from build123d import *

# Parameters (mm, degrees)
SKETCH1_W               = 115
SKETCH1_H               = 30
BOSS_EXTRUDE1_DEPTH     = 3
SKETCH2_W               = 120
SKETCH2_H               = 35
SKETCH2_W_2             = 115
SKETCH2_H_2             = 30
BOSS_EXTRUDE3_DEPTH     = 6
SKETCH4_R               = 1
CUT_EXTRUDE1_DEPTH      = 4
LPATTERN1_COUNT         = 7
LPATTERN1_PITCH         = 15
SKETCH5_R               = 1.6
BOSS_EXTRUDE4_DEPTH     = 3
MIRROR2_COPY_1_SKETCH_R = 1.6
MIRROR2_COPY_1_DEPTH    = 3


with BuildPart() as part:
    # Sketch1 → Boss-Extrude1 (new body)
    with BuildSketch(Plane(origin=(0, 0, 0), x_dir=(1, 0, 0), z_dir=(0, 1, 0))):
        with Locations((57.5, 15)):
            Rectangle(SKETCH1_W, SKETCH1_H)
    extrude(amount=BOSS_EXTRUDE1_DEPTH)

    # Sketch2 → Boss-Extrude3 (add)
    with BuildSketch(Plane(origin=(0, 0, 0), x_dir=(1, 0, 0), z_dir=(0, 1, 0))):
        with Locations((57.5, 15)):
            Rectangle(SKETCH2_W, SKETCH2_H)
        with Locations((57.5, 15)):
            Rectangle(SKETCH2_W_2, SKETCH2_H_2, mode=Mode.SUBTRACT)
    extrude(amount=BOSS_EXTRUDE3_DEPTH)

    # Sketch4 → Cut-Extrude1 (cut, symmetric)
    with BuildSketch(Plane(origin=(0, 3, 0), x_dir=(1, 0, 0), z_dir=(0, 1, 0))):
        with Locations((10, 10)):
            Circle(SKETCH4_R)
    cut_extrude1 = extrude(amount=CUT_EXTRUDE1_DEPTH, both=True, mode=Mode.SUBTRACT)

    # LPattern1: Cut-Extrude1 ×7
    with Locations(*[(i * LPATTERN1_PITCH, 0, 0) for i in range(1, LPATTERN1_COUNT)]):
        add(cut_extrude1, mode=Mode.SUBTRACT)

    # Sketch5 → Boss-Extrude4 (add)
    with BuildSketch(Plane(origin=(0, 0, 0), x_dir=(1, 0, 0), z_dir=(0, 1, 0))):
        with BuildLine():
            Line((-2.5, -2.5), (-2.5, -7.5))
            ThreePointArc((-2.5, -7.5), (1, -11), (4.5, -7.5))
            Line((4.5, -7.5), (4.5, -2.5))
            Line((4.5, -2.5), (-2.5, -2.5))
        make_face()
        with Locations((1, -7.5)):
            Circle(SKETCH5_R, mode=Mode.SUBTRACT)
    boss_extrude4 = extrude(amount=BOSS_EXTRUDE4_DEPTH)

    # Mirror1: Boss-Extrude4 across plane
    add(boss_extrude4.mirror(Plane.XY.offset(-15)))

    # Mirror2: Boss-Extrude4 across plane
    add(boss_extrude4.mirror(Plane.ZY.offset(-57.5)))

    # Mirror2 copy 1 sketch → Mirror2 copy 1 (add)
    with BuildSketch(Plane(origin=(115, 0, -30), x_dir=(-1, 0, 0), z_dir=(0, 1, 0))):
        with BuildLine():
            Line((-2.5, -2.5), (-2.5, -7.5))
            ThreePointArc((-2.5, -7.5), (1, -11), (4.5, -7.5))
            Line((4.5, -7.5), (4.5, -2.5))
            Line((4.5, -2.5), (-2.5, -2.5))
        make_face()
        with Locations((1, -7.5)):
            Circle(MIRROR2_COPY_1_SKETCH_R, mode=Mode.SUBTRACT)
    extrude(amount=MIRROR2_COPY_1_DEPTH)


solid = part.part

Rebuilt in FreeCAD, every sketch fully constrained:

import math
import FreeCAD as App
import Part
import Sketcher
from FreeCAD import Vector
Q = App.Units.Quantity

doc = App.newDocument("Part")
body = doc.addObject("PartDesign::Body", "Body")

# Sketch on XZ plane
sketch1 = body.newObject("Sketcher::SketchObject", "Sketch")
sketch1.AttachmentSupport = (doc.getObject("XZ_Plane"), [""])
sketch1.MapMode = "FlatFace"
sketch1.addGeometry(Part.LineSegment(Vector(0, -30, 0), Vector(0, 0, 0)), False)
sketch1.addGeometry(Part.LineSegment(Vector(0, 0, 0), Vector(115, 0, 0)), False)
sketch1.addGeometry(Part.LineSegment(Vector(115, 0, 0), Vector(115, -30, 0)), False)
sketch1.addGeometry(Part.LineSegment(Vector(115, -30, 0), Vector(0, -30, 0)), False)
sketch1.addConstraint(Sketcher.Constraint("Coincident", 0, 2, 1, 1))
sketch1.addConstraint(Sketcher.Constraint("Coincident", 1, 2, 2, 1))
sketch1.addConstraint(Sketcher.Constraint("Coincident", 2, 2, 3, 1))
sketch1.addConstraint(Sketcher.Constraint("Coincident", 3, 2, 0, 1))
sketch1.addConstraint(Sketcher.Constraint("Vertical", 0))
sketch1.addConstraint(Sketcher.Constraint("Horizontal", 1))
sketch1.addConstraint(Sketcher.Constraint("Vertical", 2))
sketch1.addConstraint(Sketcher.Constraint("Horizontal", 3))
sketch1.addConstraint(Sketcher.Constraint("Coincident", 0, 2, -1, 1))
sketch1.addConstraint(Sketcher.Constraint("DistanceX", 1, 1, 1, 2, Q("115 mm")))
sketch1.addConstraint(Sketcher.Constraint("DistanceY", 0, 1, 0, 2, Q("30 mm")))
pad1 = body.newObject("PartDesign::Pad", "Pad")
pad1.Profile = sketch1
pad1.Length = 3
pad1.Reversed = True

# Sketch on XZ plane
sketch2 = body.newObject("Sketcher::SketchObject", "Sketch001")
sketch2.AttachmentSupport = (doc.getObject("XZ_Plane"), [""])
sketch2.MapMode = "FlatFace"
sketch2.addGeometry(Part.LineSegment(Vector(-2, -32, 0), Vector(-2, 2, 0)), False)
sketch2.addGeometry(Part.LineSegment(Vector(-2, 2, 0), Vector(118, 2, 0)), False)
sketch2.addGeometry(Part.LineSegment(Vector(118, 2, 0), Vector(118, -32, 0)), False)
sketch2.addGeometry(Part.LineSegment(Vector(118, -32, 0), Vector(-2, -32, 0)), False)
sketch2.addGeometry(Part.LineSegment(Vector(115, 0, 0), Vector(0, 0, 0)), False)
sketch2.addGeometry(Part.LineSegment(Vector(0, 0, 0), Vector(0, -30, 0)), False)
sketch2.addGeometry(Part.LineSegment(Vector(0, -30, 0), Vector(115, -30, 0)), False)
sketch2.addGeometry(Part.LineSegment(Vector(115, -30, 0), Vector(115, 0, 0)), False)
sketch2.addConstraint(Sketcher.Constraint("Coincident", 0, 2, 1, 1))
sketch2.addConstraint(Sketcher.Constraint("Coincident", 1, 2, 2, 1))
sketch2.addConstraint(Sketcher.Constraint("Coincident", 2, 2, 3, 1))
sketch2.addConstraint(Sketcher.Constraint("Coincident", 3, 2, 0, 1))
sketch2.addConstraint(Sketcher.Constraint("Coincident", 4, 2, 5, 1))
sketch2.addConstraint(Sketcher.Constraint("Coincident", 5, 2, 6, 1))
sketch2.addConstraint(Sketcher.Constraint("Coincident", 6, 2, 7, 1))
sketch2.addConstraint(Sketcher.Constraint("Coincident", 7, 2, 4, 1))
sketch2.addConstraint(Sketcher.Constraint("Vertical", 0))
sketch2.addConstraint(Sketcher.Constraint("Horizontal", 1))
sketch2.addConstraint(Sketcher.Constraint("Vertical", 2))
sketch2.addConstraint(Sketcher.Constraint("Horizontal", 3))
sketch2.addConstraint(Sketcher.Constraint("Horizontal", 4))
sketch2.addConstraint(Sketcher.Constraint("Vertical", 5))
sketch2.addConstraint(Sketcher.Constraint("Horizontal", 6))
sketch2.addConstraint(Sketcher.Constraint("Vertical", 7))
sketch2.addConstraint(Sketcher.Constraint("Coincident", 4, 2, -1, 1))
sketch2.addConstraint(Sketcher.Constraint("DistanceX", 1, 1, 1, 2, Q("120 mm")))
sketch2.addConstraint(Sketcher.Constraint("DistanceX", 4, 2, 4, 1, Q("115 mm")))
sketch2.addConstraint(Sketcher.Constraint("DistanceY", 0, 1, 0, 2, Q("35 mm")))
sketch2.addConstraint(Sketcher.Constraint("DistanceY", 5, 2, 5, 1, Q("30 mm")))
sketch2.addConstraint(Sketcher.Constraint("DistanceX", 0, 2, -1, 1, Q("2.5 mm")))
sketch2.addConstraint(Sketcher.Constraint("DistanceY", -1, 1, 0, 2, Q("2.5 mm")))
pad2 = body.newObject("PartDesign::Pad", "Pad001")
pad2.Profile = sketch2
pad2.Length = 6
pad2.Reversed = True

# Sketch on XZ plane
sketch3 = body.newObject("Sketcher::SketchObject", "Sketch002")
sketch3.AttachmentSupport = (doc.getObject("XZ_Plane"), [""])
sketch3.MapMode = "FlatFace"
sketch3.AttachmentOffset = App.Placement(Vector(0, 0, -3), App.Rotation())
sketch3.addGeometry(Part.Circle(Vector(10, -10, 0), Vector(0, 0, 1), 1), False)
sketch3.addConstraint(Sketcher.Constraint("Diameter", 0, Q("2 mm")))
sketch3.addConstraint(Sketcher.Constraint("DistanceX", -1, 1, 0, 3, Q("10 mm")))
sketch3.addConstraint(Sketcher.Constraint("DistanceY", 0, 3, -1, 1, Q("10 mm")))
pocket1 = body.newObject("PartDesign::Pocket", "Pocket")
pocket1.Profile = sketch3
pocket1.Length = 8
pocket1.Midplane = True
doc.recompute()

linearpattern = body.newObject("PartDesign::LinearPattern", "LinearPattern")
linearpattern.Originals = [pocket1]
linearpattern.Direction = (doc.getObject("X_Axis"), [""])
linearpattern.Mode = "offset"
linearpattern.Offset = 15
linearpattern.Occurrences = 7
body.Tip = linearpattern

# Sketch on XZ plane
sketch4 = body.newObject("Sketcher::SketchObject", "Sketch003")
sketch4.AttachmentSupport = (doc.getObject("XZ_Plane"), [""])
sketch4.MapMode = "FlatFace"
sketch4.addGeometry(Part.LineSegment(Vector(-2.5, 2.5, 0), Vector(-2.5, 7.5, 0)), False)
sketch4.addGeometry(Part.ArcOfCircle(Part.Circle(Vector(1, 7.5, 0), Vector(0, 0, 1), 3.5), math.radians(0), math.radians(180)), False)
sketch4.addGeometry(Part.LineSegment(Vector(4.5, 7.5, 0), Vector(4.5, 2.5, 0)), False)
sketch4.addGeometry(Part.LineSegment(Vector(4.5, 2.5, 0), Vector(-2.5, 2.5, 0)), False)
sketch4.addGeometry(Part.Circle(Vector(1, 7.5, 0), Vector(0, 0, 1), 1.6), False)
sketch4.addConstraint(Sketcher.Constraint("Tangent", 0, 2, 1, 2))
sketch4.addConstraint(Sketcher.Constraint("Tangent", 1, 1, 2, 1))
sketch4.addConstraint(Sketcher.Constraint("Coincident", 2, 2, 3, 1))
sketch4.addConstraint(Sketcher.Constraint("Coincident", 3, 2, 0, 1))
sketch4.addConstraint(Sketcher.Constraint("Vertical", 0))
sketch4.addConstraint(Sketcher.Constraint("Vertical", 2))
sketch4.addConstraint(Sketcher.Constraint("Horizontal", 3))
sketch4.addConstraint(Sketcher.Constraint("Coincident", 4, 3, 1, 3))
sketch4.addConstraint(Sketcher.Constraint("Diameter", 4, Q("3.2 mm")))
sketch4.addConstraint(Sketcher.Constraint("Radius", 1, Q("3.5 mm")))
sketch4.addConstraint(Sketcher.Constraint("DistanceY", 0, 1, 0, 2, Q("5 mm")))
sketch4.addConstraint(Sketcher.Constraint("DistanceX", -1, 1, 1, 3, Q("1 mm")))
sketch4.addConstraint(Sketcher.Constraint("DistanceY", -1, 1, 1, 3, Q("7.5 mm")))
pad3 = body.newObject("PartDesign::Pad", "Pad002")
pad3.Profile = sketch4
pad3.Length = 3
pad3.Reversed = True
doc.recompute()

datumplane = body.newObject("PartDesign::Plane", "DatumPlane")
datumplane.AttachmentSupport = (doc.getObject("XY_Plane"), [""])
datumplane.MapMode = "FlatFace"
datumplane.AttachmentOffset = App.Placement(Vector(0, 0, -15), App.Rotation())
mirrored = body.newObject("PartDesign::Mirrored", "Mirrored")
mirrored.Originals = [pad3]
mirrored.MirrorPlane = (datumplane, [""])
body.Tip = mirrored
doc.recompute()

datumplane2 = body.newObject("PartDesign::Plane", "DatumPlane001")
datumplane2.AttachmentSupport = (doc.getObject("YZ_Plane"), [""])
datumplane2.MapMode = "FlatFace"
datumplane2.AttachmentOffset = App.Placement(Vector(0, 0, 57.5), App.Rotation())
mirrored2 = body.newObject("PartDesign::Mirrored", "Mirrored001")
mirrored2.Originals = [pad3]
mirrored2.MirrorPlane = (datumplane2, [""])
body.Tip = mirrored2

# Sketch on XZ plane
sketch5 = body.newObject("Sketcher::SketchObject", "Sketch004")
sketch5.AttachmentSupport = (doc.getObject("XZ_Plane"), [""])
sketch5.MapMode = "FlatFace"
sketch5.addGeometry(Part.LineSegment(Vector(117.5, -32.5, 0), Vector(117.5, -37.5, 0)), False)
sketch5.addGeometry(Part.ArcOfCircle(Part.Circle(Vector(114, -37.5, 0), Vector(0, 0, 1), 3.5), math.radians(180), math.radians(360)), False)
sketch5.addGeometry(Part.LineSegment(Vector(110.5, -37.5, 0), Vector(110.5, -32.5, 0)), False)
sketch5.addGeometry(Part.LineSegment(Vector(110.5, -32.5, 0), Vector(117.5, -32.5, 0)), False)
sketch5.addGeometry(Part.Circle(Vector(114, -37.5, 0), Vector(0, 0, 1), 1.6), False)
sketch5.addConstraint(Sketcher.Constraint("Tangent", 0, 2, 1, 2))
sketch5.addConstraint(Sketcher.Constraint("Tangent", 1, 1, 2, 1))
sketch5.addConstraint(Sketcher.Constraint("Coincident", 2, 2, 3, 1))
sketch5.addConstraint(Sketcher.Constraint("Coincident", 3, 2, 0, 1))
sketch5.addConstraint(Sketcher.Constraint("Vertical", 0))
sketch5.addConstraint(Sketcher.Constraint("Vertical", 2))
sketch5.addConstraint(Sketcher.Constraint("Horizontal", 3))
sketch5.addConstraint(Sketcher.Constraint("Coincident", 4, 3, 1, 3))
sketch5.addConstraint(Sketcher.Constraint("Diameter", 4, Q("3.2 mm")))
sketch5.addConstraint(Sketcher.Constraint("Radius", 1, Q("3.5 mm")))
sketch5.addConstraint(Sketcher.Constraint("DistanceY", 0, 2, 0, 1, Q("5 mm")))
sketch5.addConstraint(Sketcher.Constraint("DistanceX", -1, 1, 1, 3, Q("114 mm")))
sketch5.addConstraint(Sketcher.Constraint("DistanceY", 1, 3, -1, 1, Q("37.5 mm")))
pad4 = body.newObject("PartDesign::Pad", "Pad003")
pad4.Profile = sketch5
pad4.Length = 3
pad4.Reversed = True

doc.recompute()
